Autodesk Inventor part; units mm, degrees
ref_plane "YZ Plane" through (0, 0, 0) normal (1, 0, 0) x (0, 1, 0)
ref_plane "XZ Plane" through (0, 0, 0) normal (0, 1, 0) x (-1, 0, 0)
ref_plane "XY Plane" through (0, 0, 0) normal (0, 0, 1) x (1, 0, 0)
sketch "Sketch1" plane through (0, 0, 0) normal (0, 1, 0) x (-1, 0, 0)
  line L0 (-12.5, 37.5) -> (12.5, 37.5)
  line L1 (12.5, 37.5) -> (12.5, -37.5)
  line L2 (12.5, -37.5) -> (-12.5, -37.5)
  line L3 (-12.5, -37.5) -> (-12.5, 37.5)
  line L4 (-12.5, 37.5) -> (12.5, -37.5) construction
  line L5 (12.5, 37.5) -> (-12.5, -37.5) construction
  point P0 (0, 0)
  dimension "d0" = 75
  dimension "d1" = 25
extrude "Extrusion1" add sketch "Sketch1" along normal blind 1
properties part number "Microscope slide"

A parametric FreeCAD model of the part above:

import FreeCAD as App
import Part
import Sketcher

V = App.Vector
Q = App.Units.Quantity

doc = App.newDocument("Part")
body = doc.addObject("PartDesign::Body", "Body")

# Sketch on XZ plane
sketch1 = body.newObject("Sketcher::SketchObject", "Sketch")
sketch1.AttachmentSupport = (doc.getObject("XZ_Plane"), [""])
sketch1.MapMode = "FlatFace"
sketch1.addGeometry(Part.LineSegment(V(-12, 38, 0), V(12, 38, 0)), False)
sketch1.addGeometry(Part.LineSegment(V(12, 38, 0), V(12, -38, 0)), False)
sketch1.addGeometry(Part.LineSegment(V(12, -38, 0), V(-12, -38, 0)), False)
sketch1.addGeometry(Part.LineSegment(V(-12, -38, 0), V(-12, 38, 0)), False)
sketch1.addConstraint(Sketcher.Constraint("Coincident", 0, 2, 1, 1))
sketch1.addConstraint(Sketcher.Constraint("Coincident", 1, 2, 2, 1))
sketch1.addConstraint(Sketcher.Constraint("Coincident", 2, 2, 3, 1))
sketch1.addConstraint(Sketcher.Constraint("Coincident", 3, 2, 0, 1))
sketch1.addConstraint(Sketcher.Constraint("Horizontal", 0))
sketch1.addConstraint(Sketcher.Constraint("Vertical", 1))
sketch1.addConstraint(Sketcher.Constraint("Horizontal", 2))
sketch1.addConstraint(Sketcher.Constraint("Vertical", 3))
sketch1.addConstraint(Sketcher.Constraint("Symmetric", 0, 2, 2, 2, -1, 1))
sketch1.addConstraint(Sketcher.Constraint("DistanceX", 0, 1, 0, 2, Q("25 mm")))
sketch1.addConstraint(Sketcher.Constraint("DistanceY", 1, 2, 1, 1, Q("75 mm")))
pad1 = body.newObject("PartDesign::Pad", "Pad")
pad1.Profile = sketch1
pad1.Length = 1
pad1.Reversed = True

doc.recompute()
